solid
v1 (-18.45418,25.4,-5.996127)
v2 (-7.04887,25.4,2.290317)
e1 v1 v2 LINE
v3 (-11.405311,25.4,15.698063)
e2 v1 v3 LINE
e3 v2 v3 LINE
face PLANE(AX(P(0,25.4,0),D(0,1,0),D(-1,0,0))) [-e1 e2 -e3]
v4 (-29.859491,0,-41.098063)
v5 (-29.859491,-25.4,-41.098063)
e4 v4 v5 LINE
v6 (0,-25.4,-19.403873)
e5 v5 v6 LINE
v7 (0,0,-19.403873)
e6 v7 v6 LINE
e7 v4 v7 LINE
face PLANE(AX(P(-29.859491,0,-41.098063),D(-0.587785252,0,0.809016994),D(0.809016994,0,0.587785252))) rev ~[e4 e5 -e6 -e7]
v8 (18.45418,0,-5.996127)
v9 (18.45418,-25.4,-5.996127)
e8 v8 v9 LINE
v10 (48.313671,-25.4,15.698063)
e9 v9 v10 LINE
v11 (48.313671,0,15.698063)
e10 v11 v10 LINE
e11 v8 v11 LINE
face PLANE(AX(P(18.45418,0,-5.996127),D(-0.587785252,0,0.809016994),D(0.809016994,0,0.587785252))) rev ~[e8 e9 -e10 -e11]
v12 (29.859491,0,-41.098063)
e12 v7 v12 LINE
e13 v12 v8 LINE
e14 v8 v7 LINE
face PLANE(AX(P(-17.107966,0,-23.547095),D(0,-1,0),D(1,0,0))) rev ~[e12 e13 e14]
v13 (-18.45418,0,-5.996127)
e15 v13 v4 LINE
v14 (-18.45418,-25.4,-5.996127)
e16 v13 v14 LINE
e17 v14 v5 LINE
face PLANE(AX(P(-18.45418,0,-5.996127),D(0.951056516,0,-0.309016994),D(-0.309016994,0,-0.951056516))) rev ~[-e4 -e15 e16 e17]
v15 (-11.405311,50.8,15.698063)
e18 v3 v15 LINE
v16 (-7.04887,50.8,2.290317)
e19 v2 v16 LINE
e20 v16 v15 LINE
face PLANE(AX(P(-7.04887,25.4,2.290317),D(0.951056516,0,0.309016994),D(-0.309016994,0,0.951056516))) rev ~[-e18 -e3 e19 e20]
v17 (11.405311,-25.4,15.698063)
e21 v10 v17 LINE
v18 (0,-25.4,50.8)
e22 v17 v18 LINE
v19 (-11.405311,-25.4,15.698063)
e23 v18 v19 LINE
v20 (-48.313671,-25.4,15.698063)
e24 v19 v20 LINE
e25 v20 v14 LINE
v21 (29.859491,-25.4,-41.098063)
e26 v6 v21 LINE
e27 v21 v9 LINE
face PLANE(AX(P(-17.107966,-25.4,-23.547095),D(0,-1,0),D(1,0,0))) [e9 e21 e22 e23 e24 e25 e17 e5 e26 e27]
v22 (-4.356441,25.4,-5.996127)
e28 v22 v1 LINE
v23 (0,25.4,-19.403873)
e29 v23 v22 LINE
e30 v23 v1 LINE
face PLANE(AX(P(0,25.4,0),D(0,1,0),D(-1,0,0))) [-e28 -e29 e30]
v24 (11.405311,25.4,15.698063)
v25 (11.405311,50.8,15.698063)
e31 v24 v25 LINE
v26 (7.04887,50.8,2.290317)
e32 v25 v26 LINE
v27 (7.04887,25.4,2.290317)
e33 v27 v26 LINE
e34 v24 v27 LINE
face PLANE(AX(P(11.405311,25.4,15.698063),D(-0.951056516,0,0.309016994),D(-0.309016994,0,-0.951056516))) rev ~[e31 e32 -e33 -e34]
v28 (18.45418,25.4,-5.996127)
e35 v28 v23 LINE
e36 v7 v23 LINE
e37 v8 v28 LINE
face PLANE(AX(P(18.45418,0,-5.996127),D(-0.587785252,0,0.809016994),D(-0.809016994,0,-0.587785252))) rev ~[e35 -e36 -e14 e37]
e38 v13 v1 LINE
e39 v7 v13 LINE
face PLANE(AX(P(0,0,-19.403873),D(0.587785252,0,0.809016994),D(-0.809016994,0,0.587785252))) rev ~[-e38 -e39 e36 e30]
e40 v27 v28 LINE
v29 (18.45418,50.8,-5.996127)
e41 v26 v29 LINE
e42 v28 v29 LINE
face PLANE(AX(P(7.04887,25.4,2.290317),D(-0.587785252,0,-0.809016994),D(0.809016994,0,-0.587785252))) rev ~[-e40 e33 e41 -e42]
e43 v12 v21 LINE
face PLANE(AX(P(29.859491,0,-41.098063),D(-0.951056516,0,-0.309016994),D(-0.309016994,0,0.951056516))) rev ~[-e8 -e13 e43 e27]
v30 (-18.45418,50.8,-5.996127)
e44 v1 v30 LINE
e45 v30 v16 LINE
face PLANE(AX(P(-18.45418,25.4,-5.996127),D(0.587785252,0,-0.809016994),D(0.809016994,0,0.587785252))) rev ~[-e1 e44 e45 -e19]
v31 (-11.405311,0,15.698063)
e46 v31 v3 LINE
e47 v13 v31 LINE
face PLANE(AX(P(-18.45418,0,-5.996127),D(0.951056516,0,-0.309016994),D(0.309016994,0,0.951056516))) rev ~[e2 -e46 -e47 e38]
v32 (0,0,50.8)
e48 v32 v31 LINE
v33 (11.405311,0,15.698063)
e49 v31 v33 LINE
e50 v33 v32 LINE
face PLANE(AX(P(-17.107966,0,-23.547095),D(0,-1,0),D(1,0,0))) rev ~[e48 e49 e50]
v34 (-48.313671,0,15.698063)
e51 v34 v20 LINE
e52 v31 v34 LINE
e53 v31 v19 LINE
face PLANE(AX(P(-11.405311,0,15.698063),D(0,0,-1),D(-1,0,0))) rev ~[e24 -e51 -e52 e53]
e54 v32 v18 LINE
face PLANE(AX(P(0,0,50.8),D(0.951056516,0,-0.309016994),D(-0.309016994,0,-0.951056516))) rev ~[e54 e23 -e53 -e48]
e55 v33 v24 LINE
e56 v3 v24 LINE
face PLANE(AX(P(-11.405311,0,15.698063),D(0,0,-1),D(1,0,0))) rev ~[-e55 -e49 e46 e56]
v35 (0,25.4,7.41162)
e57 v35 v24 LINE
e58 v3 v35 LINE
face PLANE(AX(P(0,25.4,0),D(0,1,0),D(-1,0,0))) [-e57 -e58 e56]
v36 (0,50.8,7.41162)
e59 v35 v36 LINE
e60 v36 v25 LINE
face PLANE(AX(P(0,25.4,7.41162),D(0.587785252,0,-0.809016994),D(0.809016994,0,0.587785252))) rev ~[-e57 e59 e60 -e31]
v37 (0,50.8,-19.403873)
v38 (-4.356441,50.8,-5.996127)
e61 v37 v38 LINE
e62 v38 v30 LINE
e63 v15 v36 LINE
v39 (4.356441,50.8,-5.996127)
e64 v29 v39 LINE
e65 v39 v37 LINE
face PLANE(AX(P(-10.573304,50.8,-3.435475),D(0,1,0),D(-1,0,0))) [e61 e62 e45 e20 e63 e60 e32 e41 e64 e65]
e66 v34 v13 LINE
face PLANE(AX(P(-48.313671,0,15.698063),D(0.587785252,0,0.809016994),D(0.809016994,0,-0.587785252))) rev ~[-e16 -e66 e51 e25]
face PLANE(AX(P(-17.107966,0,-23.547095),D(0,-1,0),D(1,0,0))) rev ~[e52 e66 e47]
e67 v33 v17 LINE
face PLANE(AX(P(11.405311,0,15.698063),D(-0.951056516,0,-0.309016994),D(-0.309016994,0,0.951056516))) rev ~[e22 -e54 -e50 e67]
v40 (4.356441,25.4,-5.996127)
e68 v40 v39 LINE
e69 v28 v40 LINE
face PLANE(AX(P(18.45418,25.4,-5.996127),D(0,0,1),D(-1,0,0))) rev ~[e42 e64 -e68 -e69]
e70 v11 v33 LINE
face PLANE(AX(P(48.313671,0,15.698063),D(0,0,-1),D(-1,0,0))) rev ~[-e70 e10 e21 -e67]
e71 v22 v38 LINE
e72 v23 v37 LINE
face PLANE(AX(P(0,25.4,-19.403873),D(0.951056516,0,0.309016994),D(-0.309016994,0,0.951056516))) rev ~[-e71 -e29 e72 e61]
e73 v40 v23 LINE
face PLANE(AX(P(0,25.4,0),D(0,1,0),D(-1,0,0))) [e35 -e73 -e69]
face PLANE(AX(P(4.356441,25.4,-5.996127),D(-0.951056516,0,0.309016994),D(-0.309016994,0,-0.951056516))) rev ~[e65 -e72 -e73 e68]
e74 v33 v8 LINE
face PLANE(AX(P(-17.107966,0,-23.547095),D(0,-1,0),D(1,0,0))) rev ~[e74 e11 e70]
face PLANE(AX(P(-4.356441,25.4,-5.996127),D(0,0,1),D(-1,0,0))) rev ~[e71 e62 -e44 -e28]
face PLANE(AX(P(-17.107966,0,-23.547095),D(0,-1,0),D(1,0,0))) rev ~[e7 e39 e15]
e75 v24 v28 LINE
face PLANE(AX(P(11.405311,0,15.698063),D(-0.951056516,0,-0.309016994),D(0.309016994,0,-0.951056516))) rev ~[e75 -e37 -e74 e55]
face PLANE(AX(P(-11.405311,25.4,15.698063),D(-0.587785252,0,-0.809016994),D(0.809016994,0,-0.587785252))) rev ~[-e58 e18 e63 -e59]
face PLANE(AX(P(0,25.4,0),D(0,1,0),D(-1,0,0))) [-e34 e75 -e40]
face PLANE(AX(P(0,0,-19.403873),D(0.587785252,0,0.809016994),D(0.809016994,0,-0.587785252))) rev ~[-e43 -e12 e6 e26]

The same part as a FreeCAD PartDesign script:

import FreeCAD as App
import Part
import Sketcher

V = App.Vector
Q = App.Units.Quantity

doc = App.newDocument("Part")
body = doc.addObject("PartDesign::Body", "Body")

# Sketch on XZ plane
sketch1 = doc.addObject("Sketcher::SketchObject", "Sketch")
body.addObject(sketch1)
sketch1.AttachmentSupport = (doc.XZ_Plane, [""])
sketch1.MapMode = "FlatFace"
sketch1.addGeometry([
    Part.LineSegment(V(-18, -6, 0), V(-30, -41, 0)),  # 0
    Part.LineSegment(V(-30, -41, 0), V(0, -19, 0)),  # 1
    Part.LineSegment(V(0, -19, 0), V(30, -41, 0)),  # 2
    Part.LineSegment(V(30, -41, 0), V(18, -6, 0)),  # 3
    Part.LineSegment(V(18, -6, 0), V(48, 16, 0)),  # 4
    Part.LineSegment(V(48, 16, 0), V(11, 16, 0)),  # 5
    Part.LineSegment(V(11, 16, 0), V(0, 51, 0)),  # 6
    Part.LineSegment(V(0, 51, 0), V(-11, 16, 0)),  # 7
    Part.LineSegment(V(-11, 16, 0), V(-48, 16, 0)),  # 8
    Part.LineSegment(V(-48, 16, 0), V(-18, -6, 0)),  # 9
], False)
sketch1.addConstraint([
    Sketcher.Constraint("Coincident", 0, 2, 1, 1),
    Sketcher.Constraint("Coincident", 1, 2, 2, 1),
    Sketcher.Constraint("Coincident", 2, 2, 3, 1),
    Sketcher.Constraint("Coincident", 3, 2, 4, 1),
    Sketcher.Constraint("Coincident", 4, 2, 5, 1),
    Sketcher.Constraint("Coincident", 5, 2, 6, 1),
    Sketcher.Constraint("Coincident", 6, 2, 7, 1),
    Sketcher.Constraint("Coincident", 7, 2, 8, 1),
    Sketcher.Constraint("Coincident", 8, 2, 9, 1),
    Sketcher.Constraint("Coincident", 9, 2, 0, 1),
    Sketcher.Constraint("Horizontal", 5),
    Sketcher.Constraint("Horizontal", 8),
    Sketcher.Constraint("Symmetric", 0, 2, 2, 2, -2),
    Sketcher.Constraint("Symmetric", 5, 2, 7, 2, -2),
    Sketcher.Constraint("Symmetric", 3, 2, 9, 2, -2),
    Sketcher.Constraint("PointOnObject", 1, 2, -2),
    Sketcher.Constraint("PointOnObject", 6, 2, -2),
    Sketcher.Constraint("Parallel", 1, 4),
    Sketcher.Constraint("Parallel", 3, 6),
    Sketcher.Constraint("Parallel", 2, 9),
    Sketcher.Constraint("Equal", 0, 1),
    Sketcher.Constraint("Equal", 3, 4),
    Sketcher.Constraint("Equal", 4, 6),
    Sketcher.Constraint("DistanceY", -1, 1, 6, 2, Q("2 in")),
    Sketcher.Constraint("Angle", 0, Q("-108 deg")),
    Sketcher.Constraint("Angle", 1, Q("36 deg")),
    Sketcher.Constraint("DistanceX", 5, 2, 5, 1, 36.90836),
])
pad1 = doc.addObject("PartDesign::Pad", "Pad")
body.addObject(pad1)
pad1.Profile = sketch1
pad1.Length = Q("1 in")

# Sketch on XZ plane
sketch2 = doc.addObject("Sketcher::SketchObject", "Sketch001")
body.addObject(sketch2)
sketch2.AttachmentSupport = (doc.XZ_Plane, [""])
sketch2.MapMode = "FlatFace"
sketch2.addGeometry([
    Part.LineSegment(V(11, 16, 0), V(18, -6, 0)),  # 0
    Part.LineSegment(V(18, -6, 0), V(0, -19, 0)),  # 1
    Part.LineSegment(V(0, -19, 0), V(-18, -6, 0)),  # 2
    Part.LineSegment(V(-18, -6, 0), V(-11, 16, 0)),  # 3
    Part.LineSegment(V(-11, 16, 0), V(11, 16, 0)),  # 4
], False)
sketch2.addConstraint([
    Sketcher.Constraint("Coincident", 0, 2, 1, 1),
    Sketcher.Constraint("Coincident", 1, 2, 2, 1),
    Sketcher.Constraint("Coincident", 2, 2, 3, 1),
    Sketcher.Constraint("Coincident", 3, 2, 4, 1),
    Sketcher.Constraint("Coincident", 4, 2, 0, 1),
    Sketcher.Constraint("Horizontal", 4),
    Sketcher.Constraint("Symmetric", 0, 2, 2, 2, -2),
    Sketcher.Constraint("PointOnObject", 1, 2, -2),
    Sketcher.Constraint("Equal", 0, 1),
    Sketcher.Constraint("Equal", 2, 3),
    Sketcher.Constraint("Angle", 0, Q("-72 deg")),
    Sketcher.Constraint("Angle", 1, Q("-144 deg")),
    Sketcher.Constraint("DistanceX", 4, 1, 4, 2, 22.810621),
    Sketcher.Constraint("DistanceY", 0, 2, -1, 1, 5.996127),
])
pad2 = doc.addObject("PartDesign::Pad", "Pad001")
body.addObject(pad2)
pad2.Profile = sketch2
pad2.Length = Q("1 in")
pad2.Reversed = True

# Sketch on XZ plane
sketch3 = doc.addObject("Sketcher::SketchObject", "Sketch002")
body.addObject(sketch3)
sketch3.AttachmentSupport = (doc.XZ_Plane, [""])
sketch3.MapMode = "FlatFace"
sketch3.AttachmentOffset = App.Placement(V(0, 0, -1 * 25.4), App.Rotation())
sketch3.addGeometry([
    Part.LineSegment(V(-18, -6, 0), V(-7, 2, 0)),  # 0
    Part.LineSegment(V(-7, 2, 0), V(-11, 16, 0)),  # 1
    Part.LineSegment(V(-11, 16, 0), V(0, 7, 0)),  # 2
    Part.LineSegment(V(0, 7, 0), V(11, 16, 0)),  # 3
    Part.LineSegment(V(11, 16, 0), V(7, 2, 0)),  # 4
    Part.LineSegment(V(7, 2, 0), V(18, -6, 0)),  # 5
    Part.LineSegment(V(18, -6, 0), V(4, -6, 0)),  # 6
    Part.LineSegment(V(4, -6, 0), V(0, -19, 0)),  # 7
    Part.LineSegment(V(0, -19, 0), V(-4, -6, 0)),  # 8
    Part.LineSegment(V(-4, -6, 0), V(-18, -6, 0)),  # 9
], False)
sketch3.addConstraint([
    Sketcher.Constraint("Coincident", 0, 2, 1, 1),
    Sketcher.Constraint("Coincident", 1, 2, 2, 1),
    Sketcher.Constraint("Coincident", 2, 2, 3, 1),
    Sketcher.Constraint("Coincident", 3, 2, 4, 1),
    Sketcher.Constraint("Coincident", 4, 2, 5, 1),
    Sketcher.Constraint("Coincident", 5, 2, 6, 1),
    Sketcher.Constraint("Coincident", 6, 2, 7, 1),
    Sketcher.Constraint("Coincident", 7, 2, 8, 1),
    Sketcher.Constraint("Coincident", 8, 2, 9, 1),
    Sketcher.Constraint("Coincident", 9, 2, 0, 1),
    Sketcher.Constraint("Horizontal", 6),
    Sketcher.Constraint("Horizontal", 9),
    Sketcher.Constraint("Symmetric", 1, 2, 3, 2, -2),
    Sketcher.Constraint("Symmetric", 0, 2, 4, 2, -2),
    Sketcher.Constraint("Symmetric", 6, 2, 8, 2, -2),
    Sketcher.Constraint("PointOnObject", 2, 2, -2),
    Sketcher.Constraint("PointOnObject", 7, 2, -2),
    Sketcher.Constraint("Parallel", 0, 3),
    Sketcher.Constraint("Parallel", 2, 5),
    Sketcher.Constraint("Parallel", 4, 7),
    Sketcher.Constraint("Equal", 0, 1),
    Sketcher.Constraint("Equal", 1, 2),
    Sketcher.Constraint("Equal", 5, 7),
    Sketcher.Constraint("Angle", 0, Q("36 deg")),
    Sketcher.Constraint("Angle", 1, Q("108 deg")),
    Sketcher.Constraint("DistanceX", 6, 2, 6, 1, 14.097739),
    Sketcher.Constraint("DistanceY", -1, 1, 2, 2, 7.41162),
])
pad3 = doc.addObject("PartDesign::Pad", "Pad002")
body.addObject(pad3)
pad3.Profile = sketch3
pad3.Length = Q("1 in")
pad3.Reversed = True

doc.recompute()
